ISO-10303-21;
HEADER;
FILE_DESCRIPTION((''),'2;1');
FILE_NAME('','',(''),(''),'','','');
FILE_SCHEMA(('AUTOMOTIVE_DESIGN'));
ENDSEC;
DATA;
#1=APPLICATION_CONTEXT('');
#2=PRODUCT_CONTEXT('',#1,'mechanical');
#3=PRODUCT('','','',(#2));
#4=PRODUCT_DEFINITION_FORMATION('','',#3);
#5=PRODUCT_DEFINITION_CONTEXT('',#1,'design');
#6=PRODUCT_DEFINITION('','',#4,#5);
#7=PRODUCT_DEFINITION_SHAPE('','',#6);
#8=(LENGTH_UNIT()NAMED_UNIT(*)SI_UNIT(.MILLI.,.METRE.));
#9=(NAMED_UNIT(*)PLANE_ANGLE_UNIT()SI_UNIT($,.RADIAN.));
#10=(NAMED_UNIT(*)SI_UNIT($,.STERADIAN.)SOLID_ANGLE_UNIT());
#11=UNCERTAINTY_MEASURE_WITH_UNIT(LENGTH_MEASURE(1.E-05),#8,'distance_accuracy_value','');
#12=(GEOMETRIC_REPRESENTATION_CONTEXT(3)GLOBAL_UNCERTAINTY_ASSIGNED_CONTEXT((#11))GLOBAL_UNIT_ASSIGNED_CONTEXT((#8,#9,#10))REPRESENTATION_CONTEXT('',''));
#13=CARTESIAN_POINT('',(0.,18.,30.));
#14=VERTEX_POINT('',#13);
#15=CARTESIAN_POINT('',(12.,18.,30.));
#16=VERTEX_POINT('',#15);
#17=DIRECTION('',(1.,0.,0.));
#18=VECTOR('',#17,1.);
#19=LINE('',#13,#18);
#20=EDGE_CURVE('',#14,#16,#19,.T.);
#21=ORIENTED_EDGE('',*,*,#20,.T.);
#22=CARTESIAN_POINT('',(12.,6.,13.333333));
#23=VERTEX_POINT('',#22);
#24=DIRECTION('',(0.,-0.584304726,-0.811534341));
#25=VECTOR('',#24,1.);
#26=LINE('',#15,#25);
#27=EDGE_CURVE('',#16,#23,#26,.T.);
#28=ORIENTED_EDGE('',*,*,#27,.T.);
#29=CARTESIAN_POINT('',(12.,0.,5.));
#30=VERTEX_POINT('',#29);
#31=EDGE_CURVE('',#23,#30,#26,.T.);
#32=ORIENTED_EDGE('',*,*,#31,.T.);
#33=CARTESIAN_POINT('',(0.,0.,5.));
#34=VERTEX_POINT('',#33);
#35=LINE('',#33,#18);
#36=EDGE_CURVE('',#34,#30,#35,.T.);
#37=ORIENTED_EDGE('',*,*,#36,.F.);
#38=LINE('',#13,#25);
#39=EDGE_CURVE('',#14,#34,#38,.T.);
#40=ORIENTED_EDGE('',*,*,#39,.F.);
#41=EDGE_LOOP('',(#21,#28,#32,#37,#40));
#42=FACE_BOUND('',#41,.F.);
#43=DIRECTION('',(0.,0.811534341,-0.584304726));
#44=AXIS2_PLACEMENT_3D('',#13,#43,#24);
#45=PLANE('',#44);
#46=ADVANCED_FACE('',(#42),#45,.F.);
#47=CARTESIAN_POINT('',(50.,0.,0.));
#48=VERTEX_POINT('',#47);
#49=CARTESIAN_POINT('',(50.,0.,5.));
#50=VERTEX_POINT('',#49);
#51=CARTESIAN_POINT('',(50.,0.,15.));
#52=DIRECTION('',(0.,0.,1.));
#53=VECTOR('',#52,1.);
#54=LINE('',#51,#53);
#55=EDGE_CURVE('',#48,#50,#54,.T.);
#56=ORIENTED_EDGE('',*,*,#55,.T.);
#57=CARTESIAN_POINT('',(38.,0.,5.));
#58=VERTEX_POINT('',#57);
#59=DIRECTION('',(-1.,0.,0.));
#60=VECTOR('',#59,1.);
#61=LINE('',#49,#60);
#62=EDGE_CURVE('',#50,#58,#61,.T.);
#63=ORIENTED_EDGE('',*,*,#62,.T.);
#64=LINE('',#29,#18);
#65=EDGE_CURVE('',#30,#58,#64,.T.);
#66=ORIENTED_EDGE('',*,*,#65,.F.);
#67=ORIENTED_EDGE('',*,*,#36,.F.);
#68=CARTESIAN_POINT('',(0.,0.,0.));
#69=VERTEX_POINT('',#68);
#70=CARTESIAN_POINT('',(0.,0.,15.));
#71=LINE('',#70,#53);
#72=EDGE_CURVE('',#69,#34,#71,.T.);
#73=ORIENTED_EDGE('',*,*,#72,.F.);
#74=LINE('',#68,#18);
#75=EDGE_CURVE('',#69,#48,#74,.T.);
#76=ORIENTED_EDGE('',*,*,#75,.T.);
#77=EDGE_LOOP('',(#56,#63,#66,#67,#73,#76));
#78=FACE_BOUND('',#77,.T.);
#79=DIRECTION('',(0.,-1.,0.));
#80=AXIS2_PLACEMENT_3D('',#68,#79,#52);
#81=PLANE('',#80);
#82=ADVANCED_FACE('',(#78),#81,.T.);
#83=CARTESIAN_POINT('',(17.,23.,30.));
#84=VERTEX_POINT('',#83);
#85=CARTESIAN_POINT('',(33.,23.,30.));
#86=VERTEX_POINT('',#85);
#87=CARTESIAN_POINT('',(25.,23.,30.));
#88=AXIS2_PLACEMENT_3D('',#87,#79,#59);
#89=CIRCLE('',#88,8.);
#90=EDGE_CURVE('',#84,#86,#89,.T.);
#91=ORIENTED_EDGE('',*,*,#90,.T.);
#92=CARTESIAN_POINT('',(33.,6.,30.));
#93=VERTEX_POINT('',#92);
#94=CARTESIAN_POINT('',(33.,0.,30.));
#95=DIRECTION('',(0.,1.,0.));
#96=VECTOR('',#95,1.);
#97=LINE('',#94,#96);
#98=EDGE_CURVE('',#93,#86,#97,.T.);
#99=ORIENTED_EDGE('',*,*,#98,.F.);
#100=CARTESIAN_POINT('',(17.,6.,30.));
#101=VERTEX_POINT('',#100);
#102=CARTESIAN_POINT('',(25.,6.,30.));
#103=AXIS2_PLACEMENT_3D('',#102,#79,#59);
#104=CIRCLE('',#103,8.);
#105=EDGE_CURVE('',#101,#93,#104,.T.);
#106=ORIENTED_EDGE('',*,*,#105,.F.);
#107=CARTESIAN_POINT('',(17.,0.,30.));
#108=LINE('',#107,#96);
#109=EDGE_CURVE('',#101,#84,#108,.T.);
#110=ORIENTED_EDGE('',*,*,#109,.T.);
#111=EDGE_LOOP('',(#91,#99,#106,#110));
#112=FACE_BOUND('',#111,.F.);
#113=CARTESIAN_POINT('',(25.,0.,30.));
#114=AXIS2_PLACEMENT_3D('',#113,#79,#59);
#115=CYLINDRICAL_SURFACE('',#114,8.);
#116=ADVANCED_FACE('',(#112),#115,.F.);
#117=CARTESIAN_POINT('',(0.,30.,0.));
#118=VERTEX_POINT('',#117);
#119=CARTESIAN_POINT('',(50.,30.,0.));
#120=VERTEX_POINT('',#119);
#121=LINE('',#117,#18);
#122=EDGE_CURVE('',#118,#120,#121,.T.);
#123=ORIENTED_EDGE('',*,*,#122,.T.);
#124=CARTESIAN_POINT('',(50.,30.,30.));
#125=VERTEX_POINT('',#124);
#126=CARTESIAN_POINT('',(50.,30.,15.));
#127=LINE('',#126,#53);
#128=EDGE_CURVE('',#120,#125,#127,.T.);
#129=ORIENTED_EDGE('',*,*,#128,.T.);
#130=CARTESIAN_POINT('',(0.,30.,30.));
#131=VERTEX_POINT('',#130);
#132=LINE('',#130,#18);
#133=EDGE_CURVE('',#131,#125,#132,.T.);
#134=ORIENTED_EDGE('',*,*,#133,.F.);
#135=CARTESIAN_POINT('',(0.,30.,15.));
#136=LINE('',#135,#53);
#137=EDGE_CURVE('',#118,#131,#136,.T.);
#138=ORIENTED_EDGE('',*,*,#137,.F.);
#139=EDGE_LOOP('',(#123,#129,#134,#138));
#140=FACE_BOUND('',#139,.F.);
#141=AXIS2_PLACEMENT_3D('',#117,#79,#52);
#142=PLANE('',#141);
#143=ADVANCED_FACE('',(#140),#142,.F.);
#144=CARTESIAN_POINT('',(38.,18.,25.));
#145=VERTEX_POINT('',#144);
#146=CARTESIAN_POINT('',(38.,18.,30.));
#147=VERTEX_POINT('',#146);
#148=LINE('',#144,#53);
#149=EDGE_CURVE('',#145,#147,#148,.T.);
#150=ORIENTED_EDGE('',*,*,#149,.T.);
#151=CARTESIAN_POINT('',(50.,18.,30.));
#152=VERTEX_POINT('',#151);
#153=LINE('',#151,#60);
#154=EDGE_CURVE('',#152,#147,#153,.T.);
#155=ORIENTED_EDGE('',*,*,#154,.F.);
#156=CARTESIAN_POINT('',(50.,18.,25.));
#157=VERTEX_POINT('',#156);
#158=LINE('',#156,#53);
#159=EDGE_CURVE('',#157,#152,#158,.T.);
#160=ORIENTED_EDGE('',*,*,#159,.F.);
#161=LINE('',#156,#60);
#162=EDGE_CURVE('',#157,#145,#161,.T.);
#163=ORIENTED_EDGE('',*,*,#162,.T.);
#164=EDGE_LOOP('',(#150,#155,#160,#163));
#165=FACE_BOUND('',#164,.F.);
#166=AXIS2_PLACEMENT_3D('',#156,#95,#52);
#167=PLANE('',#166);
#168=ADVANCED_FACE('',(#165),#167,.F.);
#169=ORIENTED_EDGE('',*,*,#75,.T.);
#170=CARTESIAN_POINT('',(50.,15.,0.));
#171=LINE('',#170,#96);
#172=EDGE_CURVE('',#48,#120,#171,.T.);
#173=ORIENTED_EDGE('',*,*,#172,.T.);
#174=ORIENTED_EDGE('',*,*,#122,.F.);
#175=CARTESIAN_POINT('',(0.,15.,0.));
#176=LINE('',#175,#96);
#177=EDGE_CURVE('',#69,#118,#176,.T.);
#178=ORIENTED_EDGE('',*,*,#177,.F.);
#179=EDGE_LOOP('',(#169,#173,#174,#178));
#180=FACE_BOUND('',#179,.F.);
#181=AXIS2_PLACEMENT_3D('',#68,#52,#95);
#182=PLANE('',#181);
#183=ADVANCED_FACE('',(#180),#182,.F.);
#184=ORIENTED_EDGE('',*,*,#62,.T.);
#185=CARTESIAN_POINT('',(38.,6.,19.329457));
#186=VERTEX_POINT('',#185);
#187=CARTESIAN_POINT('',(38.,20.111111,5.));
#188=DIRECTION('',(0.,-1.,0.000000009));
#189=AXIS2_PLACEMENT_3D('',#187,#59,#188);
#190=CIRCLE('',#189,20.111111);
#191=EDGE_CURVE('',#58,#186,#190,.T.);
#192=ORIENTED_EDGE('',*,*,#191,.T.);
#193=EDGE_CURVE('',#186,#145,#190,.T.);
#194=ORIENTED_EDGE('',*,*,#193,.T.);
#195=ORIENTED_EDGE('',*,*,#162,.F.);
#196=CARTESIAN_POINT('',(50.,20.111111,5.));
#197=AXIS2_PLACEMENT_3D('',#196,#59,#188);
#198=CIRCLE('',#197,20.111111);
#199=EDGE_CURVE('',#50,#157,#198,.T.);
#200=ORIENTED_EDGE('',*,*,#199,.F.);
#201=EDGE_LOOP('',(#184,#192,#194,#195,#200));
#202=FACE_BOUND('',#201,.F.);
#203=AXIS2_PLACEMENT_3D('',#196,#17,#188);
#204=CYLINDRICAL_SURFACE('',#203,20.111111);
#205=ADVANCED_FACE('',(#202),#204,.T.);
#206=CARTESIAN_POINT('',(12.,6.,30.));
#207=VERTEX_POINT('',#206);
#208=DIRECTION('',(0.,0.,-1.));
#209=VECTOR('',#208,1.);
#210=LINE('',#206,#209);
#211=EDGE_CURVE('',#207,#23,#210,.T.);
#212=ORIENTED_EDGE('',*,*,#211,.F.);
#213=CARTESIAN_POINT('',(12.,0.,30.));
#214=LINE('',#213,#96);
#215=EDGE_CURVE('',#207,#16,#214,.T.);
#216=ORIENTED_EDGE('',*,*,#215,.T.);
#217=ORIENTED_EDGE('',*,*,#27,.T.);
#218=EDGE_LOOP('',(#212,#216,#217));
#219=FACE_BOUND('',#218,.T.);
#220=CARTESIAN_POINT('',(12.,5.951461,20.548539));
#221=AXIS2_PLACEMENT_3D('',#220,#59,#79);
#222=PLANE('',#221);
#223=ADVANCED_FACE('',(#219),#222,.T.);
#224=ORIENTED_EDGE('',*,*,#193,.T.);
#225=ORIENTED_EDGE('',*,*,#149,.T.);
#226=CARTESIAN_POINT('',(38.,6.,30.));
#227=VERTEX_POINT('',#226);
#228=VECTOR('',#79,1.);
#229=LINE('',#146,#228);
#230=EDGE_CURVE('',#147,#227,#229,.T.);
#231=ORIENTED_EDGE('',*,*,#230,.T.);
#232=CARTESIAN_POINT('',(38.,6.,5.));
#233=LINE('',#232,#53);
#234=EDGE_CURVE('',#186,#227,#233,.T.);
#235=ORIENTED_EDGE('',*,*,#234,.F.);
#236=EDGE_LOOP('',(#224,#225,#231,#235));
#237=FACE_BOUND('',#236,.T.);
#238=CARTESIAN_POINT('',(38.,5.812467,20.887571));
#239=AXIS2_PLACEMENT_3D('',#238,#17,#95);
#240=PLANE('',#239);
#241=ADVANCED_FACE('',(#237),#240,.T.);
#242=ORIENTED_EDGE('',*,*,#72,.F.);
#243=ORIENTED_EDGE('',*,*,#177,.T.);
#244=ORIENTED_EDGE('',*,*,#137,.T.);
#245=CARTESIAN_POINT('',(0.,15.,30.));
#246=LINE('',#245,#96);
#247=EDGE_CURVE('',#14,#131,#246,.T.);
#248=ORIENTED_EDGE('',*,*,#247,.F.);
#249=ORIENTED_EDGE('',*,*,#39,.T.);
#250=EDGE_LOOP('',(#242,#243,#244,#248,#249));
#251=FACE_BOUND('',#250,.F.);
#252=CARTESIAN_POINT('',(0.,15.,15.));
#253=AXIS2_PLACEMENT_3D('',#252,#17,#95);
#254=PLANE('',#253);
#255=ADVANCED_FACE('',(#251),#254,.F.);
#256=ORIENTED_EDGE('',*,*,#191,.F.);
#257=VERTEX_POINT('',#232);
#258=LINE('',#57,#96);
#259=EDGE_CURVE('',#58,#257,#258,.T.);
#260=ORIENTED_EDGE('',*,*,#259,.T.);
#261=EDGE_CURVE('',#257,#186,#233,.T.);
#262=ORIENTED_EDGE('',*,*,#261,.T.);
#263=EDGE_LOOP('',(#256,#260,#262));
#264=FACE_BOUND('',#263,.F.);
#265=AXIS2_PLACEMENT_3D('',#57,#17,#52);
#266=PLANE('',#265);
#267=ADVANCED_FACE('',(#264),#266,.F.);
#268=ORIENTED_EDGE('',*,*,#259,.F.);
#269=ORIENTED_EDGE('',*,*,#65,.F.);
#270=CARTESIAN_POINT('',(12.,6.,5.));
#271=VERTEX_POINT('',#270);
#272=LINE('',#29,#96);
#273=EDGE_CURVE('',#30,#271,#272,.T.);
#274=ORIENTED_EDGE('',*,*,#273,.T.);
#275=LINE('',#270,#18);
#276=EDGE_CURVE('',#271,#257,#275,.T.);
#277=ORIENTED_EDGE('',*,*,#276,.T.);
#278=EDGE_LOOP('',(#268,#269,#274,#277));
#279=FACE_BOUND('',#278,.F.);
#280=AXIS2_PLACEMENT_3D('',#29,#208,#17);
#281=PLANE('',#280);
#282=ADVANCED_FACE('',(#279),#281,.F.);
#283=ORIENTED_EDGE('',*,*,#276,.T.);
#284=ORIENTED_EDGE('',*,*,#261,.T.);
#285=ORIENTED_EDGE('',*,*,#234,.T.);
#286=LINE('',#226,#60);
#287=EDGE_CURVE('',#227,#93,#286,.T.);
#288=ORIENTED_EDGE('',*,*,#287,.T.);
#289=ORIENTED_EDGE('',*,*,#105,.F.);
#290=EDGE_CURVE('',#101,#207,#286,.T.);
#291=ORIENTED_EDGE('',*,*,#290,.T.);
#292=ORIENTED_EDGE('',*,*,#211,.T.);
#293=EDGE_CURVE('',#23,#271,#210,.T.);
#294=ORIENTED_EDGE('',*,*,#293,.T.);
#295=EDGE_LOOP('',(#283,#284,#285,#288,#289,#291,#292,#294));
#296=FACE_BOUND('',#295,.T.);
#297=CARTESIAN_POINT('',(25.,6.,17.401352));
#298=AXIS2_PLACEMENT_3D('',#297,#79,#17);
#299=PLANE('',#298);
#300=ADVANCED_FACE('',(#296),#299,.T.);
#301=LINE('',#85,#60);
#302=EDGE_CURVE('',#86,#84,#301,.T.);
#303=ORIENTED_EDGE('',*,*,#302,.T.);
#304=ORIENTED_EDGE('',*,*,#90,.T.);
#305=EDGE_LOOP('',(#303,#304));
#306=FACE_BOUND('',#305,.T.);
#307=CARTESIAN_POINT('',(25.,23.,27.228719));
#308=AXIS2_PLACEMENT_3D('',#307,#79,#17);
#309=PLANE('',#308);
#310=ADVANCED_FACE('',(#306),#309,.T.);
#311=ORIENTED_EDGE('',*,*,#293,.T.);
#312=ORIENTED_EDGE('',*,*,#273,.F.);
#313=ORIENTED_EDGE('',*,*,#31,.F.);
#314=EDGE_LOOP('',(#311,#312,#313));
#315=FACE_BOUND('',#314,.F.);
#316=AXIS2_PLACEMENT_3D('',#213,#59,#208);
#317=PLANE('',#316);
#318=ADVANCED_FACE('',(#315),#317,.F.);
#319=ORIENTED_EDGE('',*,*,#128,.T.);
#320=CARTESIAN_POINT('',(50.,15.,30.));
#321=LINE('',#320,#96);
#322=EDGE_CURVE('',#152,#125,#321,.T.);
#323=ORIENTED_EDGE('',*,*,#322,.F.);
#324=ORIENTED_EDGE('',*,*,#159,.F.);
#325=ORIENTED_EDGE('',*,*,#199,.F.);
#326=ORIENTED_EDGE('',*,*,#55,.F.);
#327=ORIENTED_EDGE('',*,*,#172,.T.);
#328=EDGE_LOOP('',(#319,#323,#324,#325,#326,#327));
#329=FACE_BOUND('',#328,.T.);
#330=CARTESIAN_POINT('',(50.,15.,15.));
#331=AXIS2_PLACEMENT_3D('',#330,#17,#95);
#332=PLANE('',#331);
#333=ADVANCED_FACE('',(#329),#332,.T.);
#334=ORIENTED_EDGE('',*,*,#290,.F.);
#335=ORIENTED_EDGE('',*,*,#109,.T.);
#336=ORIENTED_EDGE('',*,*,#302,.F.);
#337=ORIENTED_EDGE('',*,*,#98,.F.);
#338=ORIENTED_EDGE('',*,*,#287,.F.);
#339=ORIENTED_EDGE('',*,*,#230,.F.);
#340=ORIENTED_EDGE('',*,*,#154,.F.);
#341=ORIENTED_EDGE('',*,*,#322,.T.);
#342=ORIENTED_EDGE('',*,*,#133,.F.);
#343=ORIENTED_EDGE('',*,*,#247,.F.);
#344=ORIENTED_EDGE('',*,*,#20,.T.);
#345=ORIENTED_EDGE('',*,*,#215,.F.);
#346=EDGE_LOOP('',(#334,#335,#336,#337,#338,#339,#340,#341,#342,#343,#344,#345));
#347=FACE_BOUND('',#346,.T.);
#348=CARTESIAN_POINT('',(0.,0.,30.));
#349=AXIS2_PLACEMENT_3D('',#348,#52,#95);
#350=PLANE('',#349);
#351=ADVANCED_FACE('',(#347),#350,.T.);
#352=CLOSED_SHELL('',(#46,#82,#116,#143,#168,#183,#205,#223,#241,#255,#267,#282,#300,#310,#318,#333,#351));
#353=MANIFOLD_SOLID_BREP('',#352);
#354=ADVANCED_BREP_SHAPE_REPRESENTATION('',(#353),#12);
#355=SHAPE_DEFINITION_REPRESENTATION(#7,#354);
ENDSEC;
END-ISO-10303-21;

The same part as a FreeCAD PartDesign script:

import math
import FreeCAD as App
import Part
import Sketcher
Q = App.Units.Quantity


def add_polygon(sketch, points):
    """Adds a closed chain of lines whose ends are joined by coincident constraints."""
    first, n = sketch.GeometryCount, len(points)
    for a, b in zip(points, points[1:] + points[:1]):
        sketch.addGeometry(Part.LineSegment(App.Vector(*a, 0), App.Vector(*b, 0)), False)
    for i in range(n):
        sketch.addConstraint(Sketcher.Constraint("Coincident", first + i, 2, first + (i + 1) % n, 1))

doc = App.newDocument("Part")
body = doc.addObject("PartDesign::Body", "Body")

# Sketch on YZ plane
sketch1 = body.newObject("Sketcher::SketchObject", "Sketch")
sketch1.AttachmentSupport = (doc.getObject("YZ_Plane"), [""])
sketch1.MapMode = "FlatFace"
add_polygon(sketch1, [(0, 30), (0, 0), (30, 0), (30, 30)])  # lines 0-3
sketch1.addConstraint([
    Sketcher.Constraint("Vertical", 0),
    Sketcher.Constraint("Horizontal", 1),
    Sketcher.Constraint("Vertical", 2),
    Sketcher.Constraint("Horizontal", 3),
    Sketcher.Constraint("Coincident", 0, 2, -1, 1),
    Sketcher.Constraint("Equal", 3, 0),
    Sketcher.Constraint("DistanceX", 1, 1, 1, 2, Q("30 mm")),
])
pad1 = body.newObject("PartDesign::Pad", "Pad")
pad1.Profile = sketch1
pad1.Length = 50

# Sketch on YZ plane
sketch2 = body.newObject("Sketcher::SketchObject", "Sketch001")
sketch2.AttachmentSupport = (doc.getObject("YZ_Plane"), [""])
sketch2.MapMode = "FlatFace"
sketch2.AttachmentOffset = App.Placement(App.Vector(0, 0, 50), App.Rotation())
sketch2.addGeometry([
    Part.LineSegment(App.Vector(18, 25, 0), App.Vector(18, 30, 0)),
    Part.LineSegment(App.Vector(18, 30, 0), App.Vector(0, 30, 0)),
    Part.LineSegment(App.Vector(0, 30, 0), App.Vector(0, 5, 0)),
    Part.ArcOfCircle(Part.Circle(App.Vector(20, 5, 0), App.Vector(0, 0, 1), 20), math.radians(96), math.radians(180)),
], False)
sketch2.addConstraint([
    Sketcher.Constraint("Coincident", 0, 2, 1, 1),
    Sketcher.Constraint("Coincident", 1, 2, 2, 1),
    Sketcher.Constraint("Tangent", 2, 2, 3, 2),
    Sketcher.Constraint("Coincident", 3, 1, 0, 1),
    Sketcher.Constraint("Vertical", 0),
    Sketcher.Constraint("Horizontal", 1),
    Sketcher.Constraint("Vertical", 2),
    Sketcher.Constraint("PointOnObject", 1, 2, -2),
    Sketcher.Constraint("DistanceX", 1, 2, 1, 1, Q("18 mm")),
    Sketcher.Constraint("DistanceY", 0, 1, 0, 2, Q("5 mm")),
    Sketcher.Constraint("DistanceY", 2, 2, 2, 1, Q("25 mm")),
    Sketcher.Constraint("DistanceY", -1, 1, 3, 3, Q("5 mm")),
])
pocket1 = body.newObject("PartDesign::Pocket", "Pocket")
pocket1.Profile = sketch2
pocket1.Length = 12

# Sketch on YZ plane
sketch3 = body.newObject("Sketcher::SketchObject", "Sketch002")
sketch3.AttachmentSupport = (doc.getObject("YZ_Plane"), [""])
sketch3.MapMode = "FlatFace"
add_polygon(sketch3, [(0, 30), (18, 30), (0, 5)])  # lines 0-2
sketch3.addConstraint([
    Sketcher.Constraint("Horizontal", 0),
    Sketcher.Constraint("Vertical", 2),
    Sketcher.Constraint("PointOnObject", 1, 2, -2),
    Sketcher.Constraint("DistanceX", 0, 1, 0, 2, Q("18 mm")),
    Sketcher.Constraint("DistanceY", 2, 1, 2, 2, Q("25 mm")),
    Sketcher.Constraint("DistanceY", -1, 1, 0, 2, Q("30 mm")),
])
pocket2 = body.newObject("PartDesign::Pocket", "Pocket001")
pocket2.Profile = sketch3
pocket2.Length = 12
pocket2.Reversed = True

# Sketch on XZ plane
sketch4 = body.newObject("Sketcher::SketchObject", "Sketch003")
sketch4.AttachmentSupport = (doc.getObject("XZ_Plane"), [""])
sketch4.MapMode = "FlatFace"
add_polygon(sketch4, [(12, 30), (12, 5), (38, 5), (38, 30)])  # lines 0-3
sketch4.addConstraint([
    Sketcher.Constraint("Vertical", 0),
    Sketcher.Constraint("Horizontal", 1),
    Sketcher.Constraint("Vertical", 2),
    Sketcher.Constraint("Horizontal", 3),
    Sketcher.Constraint("DistanceX", 1, 1, 1, 2, Q("26 mm")),
    Sketcher.Constraint("DistanceY", 0, 2, 0, 1, Q("25 mm")),
    Sketcher.Constraint("DistanceX", -1, 1, 0, 2, Q("12 mm")),
    Sketcher.Constraint("DistanceY", -1, 1, 0, 2, Q("5 mm")),
])
pocket3 = body.newObject("PartDesign::Pocket", "Pocket002")
pocket3.Profile = sketch4
pocket3.Length = 6

# Sketch on XZ plane
sketch5 = body.newObject("Sketcher::SketchObject", "Sketch004")
sketch5.AttachmentSupport = (doc.getObject("XZ_Plane"), [""])
sketch5.MapMode = "FlatFace"
sketch5.addGeometry([
    Part.LineSegment(App.Vector(33, 30, 0), App.Vector(17, 30, 0)),
    Part.ArcOfCircle(Part.Circle(App.Vector(25, 30, 0), App.Vector(0, 0, 1), 8), math.radians(180), math.radians(360)),
], False)
sketch5.addConstraint([
    Sketcher.Constraint("Coincident", 0, 1, 1, 2),
    Sketcher.Constraint("Coincident", 1, 1, 0, 2),
    Sketcher.Constraint("Horizontal", 0),
    Sketcher.Constraint("Horizontal", 1, 3, 0, 1),
    Sketcher.Constraint("Radius", 1, Q("8 mm")),
    Sketcher.Constraint("DistanceX", -1, 1, 1, 3, Q("25 mm")),
    Sketcher.Constraint("DistanceY", -1, 1, 1, 3, Q("30 mm")),
])
pocket4 = body.newObject("PartDesign::Pocket", "Pocket003")
pocket4.Profile = sketch5
pocket4.Length = 23

doc.recompute()
